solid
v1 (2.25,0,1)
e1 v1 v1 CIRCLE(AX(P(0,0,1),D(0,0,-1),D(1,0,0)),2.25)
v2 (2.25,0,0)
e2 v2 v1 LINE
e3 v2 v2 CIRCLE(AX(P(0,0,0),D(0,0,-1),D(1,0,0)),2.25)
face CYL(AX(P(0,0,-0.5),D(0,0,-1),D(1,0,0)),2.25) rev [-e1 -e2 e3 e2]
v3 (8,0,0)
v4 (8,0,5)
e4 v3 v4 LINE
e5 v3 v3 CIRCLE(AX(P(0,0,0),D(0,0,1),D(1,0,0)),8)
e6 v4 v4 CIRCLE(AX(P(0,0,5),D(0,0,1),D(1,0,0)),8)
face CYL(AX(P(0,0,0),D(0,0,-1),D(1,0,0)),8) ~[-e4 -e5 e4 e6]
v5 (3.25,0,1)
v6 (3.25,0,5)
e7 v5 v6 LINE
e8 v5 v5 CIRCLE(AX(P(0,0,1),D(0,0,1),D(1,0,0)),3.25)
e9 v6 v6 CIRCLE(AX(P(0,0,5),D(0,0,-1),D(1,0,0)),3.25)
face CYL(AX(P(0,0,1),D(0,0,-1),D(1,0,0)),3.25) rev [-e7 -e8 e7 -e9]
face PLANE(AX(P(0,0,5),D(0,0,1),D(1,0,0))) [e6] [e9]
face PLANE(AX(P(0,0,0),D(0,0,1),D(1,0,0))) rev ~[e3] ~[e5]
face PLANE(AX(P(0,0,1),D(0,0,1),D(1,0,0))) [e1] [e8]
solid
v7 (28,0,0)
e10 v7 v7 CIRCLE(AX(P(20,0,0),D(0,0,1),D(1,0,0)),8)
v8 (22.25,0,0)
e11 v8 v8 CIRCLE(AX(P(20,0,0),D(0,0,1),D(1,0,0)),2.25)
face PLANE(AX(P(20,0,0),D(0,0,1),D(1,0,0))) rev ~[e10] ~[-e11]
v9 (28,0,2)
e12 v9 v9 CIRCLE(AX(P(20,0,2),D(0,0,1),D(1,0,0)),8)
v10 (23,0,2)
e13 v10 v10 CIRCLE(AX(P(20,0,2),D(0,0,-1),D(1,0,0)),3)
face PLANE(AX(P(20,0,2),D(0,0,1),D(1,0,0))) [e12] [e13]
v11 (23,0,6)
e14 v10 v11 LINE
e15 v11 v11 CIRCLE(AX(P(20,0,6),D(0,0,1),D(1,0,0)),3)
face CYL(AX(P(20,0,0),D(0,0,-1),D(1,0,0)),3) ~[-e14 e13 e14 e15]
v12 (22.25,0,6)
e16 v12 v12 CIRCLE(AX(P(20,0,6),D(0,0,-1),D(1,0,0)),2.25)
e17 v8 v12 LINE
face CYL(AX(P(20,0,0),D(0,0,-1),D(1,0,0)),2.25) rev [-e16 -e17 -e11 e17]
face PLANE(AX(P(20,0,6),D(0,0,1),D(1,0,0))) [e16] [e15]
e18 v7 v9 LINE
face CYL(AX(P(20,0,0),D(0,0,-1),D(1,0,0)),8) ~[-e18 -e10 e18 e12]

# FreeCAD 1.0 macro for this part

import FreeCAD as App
import Part
import Sketcher
from FreeCAD import Vector
Q = App.Units.Quantity

doc = App.newDocument("Part")
params = doc.addObject("Spreadsheet::Sheet", "Params")
for row, (alias, value) in enumerate([
    ("sketch1_diameter", "6.5 mm"),
    ("pad1_length", "5 mm"),
    ("sketch2_diameter", "4.5 mm"),
    ("pad2_length", "9 mm"),
    ("sketch3_diameter", "16 mm"),
    ("pad3_length", "5 mm"),
    ("sketch4_diameter", "4.5 mm"),
    ("pad4_length", "10 mm"),
    ("sketch5_diameter", "16 mm"),
    ("pad5_length", "2 mm"),
    ("sketch6_diameter", "6 mm"),
    ("pad6_length", "6 mm"),
], start=1):
    params.set(f"A{row}", alias)
    params.set(f"B{row}", "=" + value)
    params.setAlias(f"B{row}", alias)

body = doc.addObject("PartDesign::Body", "Body")

# Sketch on XY plane
sketch1 = doc.addObject("Sketcher::SketchObject", "Sketch")
body.addObject(sketch1)
sketch1.AttachmentSupport = (doc.XY_Plane, [""])
sketch1.MapMode = "FlatFace"
sketch1.AttachmentOffset = App.Placement(Vector(0, 0, 1), App.Rotation())
sketch1.addGeometry(Part.Circle(Vector(0, 0, 0), Vector(0, 0, 1), 3.2), False)
sketch1.addConstraint([
    Sketcher.Constraint("Coincident", 0, 3, -1, 1),
    Sketcher.Constraint("Diameter", 0, Q("6.5 mm")),
])
sketch1.setExpression("Constraints[1]", "Params.sketch1_diameter")
pad1 = doc.addObject("PartDesign::Pad", "Pad")
body.addObject(pad1)
pad1.Profile = sketch1
pad1.setExpression("Length", "Params.pad1_length")
body2 = doc.addObject("PartDesign::Body", "Body001")

# Sketch on XY plane
sketch2 = doc.addObject("Sketcher::SketchObject", "Sketch001")
body2.addObject(sketch2)
sketch2.AttachmentSupport = (doc.getObject("XY_Plane001"), [""])
sketch2.MapMode = "FlatFace"
sketch2.AttachmentOffset = App.Placement(Vector(0, 0, -0.5), App.Rotation())
sketch2.addGeometry(Part.Circle(Vector(0, 0, 0), Vector(0, 0, 1), 2.2), False)
sketch2.addConstraint([
    Sketcher.Constraint("Coincident", 0, 3, -1, 1),
    Sketcher.Constraint("Diameter", 0, Q("4.5 mm")),
])
sketch2.setExpression("Constraints[1]", "Params.sketch2_diameter")
pad2 = doc.addObject("PartDesign::Pad", "Pad001")
body2.addObject(pad2)
pad2.Profile = sketch2
pad2.setExpression("Length", "Params.pad2_length")
doc.recompute()

boolean = doc.addObject("PartDesign::Boolean", "Boolean")
body2.addObject(boolean)
boolean.Type = "Fuse"
boolean.addObjects([body])
body3 = doc.addObject("PartDesign::Body", "Body002")

# Sketch on XY plane
sketch3 = doc.addObject("Sketcher::SketchObject", "Sketch002")
body3.addObject(sketch3)
sketch3.AttachmentSupport = (doc.getObject("XY_Plane002"), [""])
sketch3.MapMode = "FlatFace"
sketch3.addGeometry(Part.Circle(Vector(0, 0, 0), Vector(0, 0, 1), 8), False)
sketch3.addConstraint([
    Sketcher.Constraint("Coincident", 0, 3, -1, 1),
    Sketcher.Constraint("Diameter", 0, Q("16 mm")),
])
sketch3.setExpression("Constraints[1]", "Params.sketch3_diameter")
pad3 = doc.addObject("PartDesign::Pad", "Pad002")
body3.addObject(pad3)
pad3.Profile = sketch3
pad3.setExpression("Length", "Params.pad3_length")
doc.recompute()

boolean2 = doc.addObject("PartDesign::Boolean", "Boolean001")
body3.addObject(boolean2)
boolean2.Type = "Cut"
boolean2.addObjects([body2])
body4 = doc.addObject("PartDesign::Body", "Body003")

# Sketch on XY plane
sketch4 = doc.addObject("Sketcher::SketchObject", "Sketch003")
body4.addObject(sketch4)
sketch4.AttachmentSupport = (doc.getObject("XY_Plane003"), [""])
sketch4.MapMode = "FlatFace"
sketch4.addGeometry(Part.Circle(Vector(20, 0, 0), Vector(0, 0, 1), 2.2), False)
sketch4.addConstraint([
    Sketcher.Constraint("PointOnObject", 0, 3, -1),
    Sketcher.Constraint("Diameter", 0, Q("4.5 mm")),
    Sketcher.Constraint("DistanceX", -1, 1, 0, 3, Q("20 mm")),
])
sketch4.setExpression("Constraints[1]", "Params.sketch4_diameter")
pad4 = doc.addObject("PartDesign::Pad", "Pad003")
body4.addObject(pad4)
pad4.Profile = sketch4
pad4.setExpression("Length", "Params.pad4_length")
body5 = doc.addObject("PartDesign::Body", "Body004")

# Sketch on XY plane
sketch5 = doc.addObject("Sketcher::SketchObject", "Sketch004")
body5.addObject(sketch5)
sketch5.AttachmentSupport = (doc.getObject("XY_Plane004"), [""])
sketch5.MapMode = "FlatFace"
sketch5.addGeometry(Part.Circle(Vector(20, 0, 0), Vector(0, 0, 1), 8), False)
sketch5.addConstraint([
    Sketcher.Constraint("PointOnObject", 0, 3, -1),
    Sketcher.Constraint("Diameter", 0, Q("16 mm")),
    Sketcher.Constraint("DistanceX", -1, 1, 0, 3, Q("20 mm")),
])
sketch5.setExpression("Constraints[1]", "Params.sketch5_diameter")
pad5 = doc.addObject("PartDesign::Pad", "Pad004")
body5.addObject(pad5)
pad5.Profile = sketch5
pad5.setExpression("Length", "Params.pad5_length")
body6 = doc.addObject("PartDesign::Body", "Body005")

# Sketch on XY plane
sketch6 = doc.addObject("Sketcher::SketchObject", "Sketch005")
body6.addObject(sketch6)
sketch6.AttachmentSupport = (doc.getObject("XY_Plane005"), [""])
sketch6.MapMode = "FlatFace"
sketch6.addGeometry(Part.Circle(Vector(20, 0, 0), Vector(0, 0, 1), 3), False)
sketch6.addConstraint([
    Sketcher.Constraint("PointOnObject", 0, 3, -1),
    Sketcher.Constraint("Diameter", 0, Q("6 mm")),
    Sketcher.Constraint("DistanceX", -1, 1, 0, 3, Q("20 mm")),
])
sketch6.setExpression("Constraints[1]", "Params.sketch6_diameter")
pad6 = doc.addObject("PartDesign::Pad", "Pad005")
body6.addObject(pad6)
pad6.Profile = sketch6
pad6.setExpression("Length", "Params.pad6_length")
doc.recompute()

boolean3 = doc.addObject("PartDesign::Boolean", "Boolean002")
body6.addObject(boolean3)
boolean3.Type = "Fuse"
boolean3.addObjects([body5])
doc.recompute()

boolean4 = doc.addObject("PartDesign::Boolean", "Boolean003")
body6.addObject(boolean4)
boolean4.Type = "Cut"
boolean4.addObjects([body4])

doc.recompute()
